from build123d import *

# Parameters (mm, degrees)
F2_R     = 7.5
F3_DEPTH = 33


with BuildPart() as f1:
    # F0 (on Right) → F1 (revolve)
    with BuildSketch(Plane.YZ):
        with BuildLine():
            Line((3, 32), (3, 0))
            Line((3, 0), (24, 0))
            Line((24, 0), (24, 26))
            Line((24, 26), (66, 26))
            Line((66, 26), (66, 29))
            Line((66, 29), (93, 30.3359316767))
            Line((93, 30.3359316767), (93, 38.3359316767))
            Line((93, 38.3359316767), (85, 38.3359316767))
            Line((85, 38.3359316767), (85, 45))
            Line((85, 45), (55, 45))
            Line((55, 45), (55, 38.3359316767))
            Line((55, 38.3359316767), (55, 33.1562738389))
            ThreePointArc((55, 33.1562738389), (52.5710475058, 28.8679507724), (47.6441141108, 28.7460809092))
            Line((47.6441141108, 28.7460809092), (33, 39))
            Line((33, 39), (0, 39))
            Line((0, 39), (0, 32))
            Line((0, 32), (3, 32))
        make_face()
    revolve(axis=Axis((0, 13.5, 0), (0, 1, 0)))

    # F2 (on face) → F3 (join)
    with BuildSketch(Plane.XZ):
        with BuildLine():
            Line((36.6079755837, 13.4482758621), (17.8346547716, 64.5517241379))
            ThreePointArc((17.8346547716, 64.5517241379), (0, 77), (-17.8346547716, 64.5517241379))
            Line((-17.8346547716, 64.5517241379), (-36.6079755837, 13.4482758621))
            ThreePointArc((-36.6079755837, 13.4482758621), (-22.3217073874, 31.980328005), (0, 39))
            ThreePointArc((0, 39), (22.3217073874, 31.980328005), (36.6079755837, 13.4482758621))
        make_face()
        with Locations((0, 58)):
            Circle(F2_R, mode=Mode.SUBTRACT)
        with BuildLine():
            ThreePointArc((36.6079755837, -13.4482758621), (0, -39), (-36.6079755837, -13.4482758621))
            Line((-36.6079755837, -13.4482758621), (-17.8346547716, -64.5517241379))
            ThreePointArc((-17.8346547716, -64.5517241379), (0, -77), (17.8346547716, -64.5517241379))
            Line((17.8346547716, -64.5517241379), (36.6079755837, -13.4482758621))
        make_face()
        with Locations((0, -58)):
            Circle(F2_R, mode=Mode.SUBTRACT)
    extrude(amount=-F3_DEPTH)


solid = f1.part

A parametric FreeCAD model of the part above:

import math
import FreeCAD as App
import Part
import Sketcher
from FreeCAD import Vector
Q = App.Units.Quantity

doc = App.newDocument("Part")
body = doc.addObject("PartDesign::Body", "Body")

# Sketch on YZ plane
sketch1 = doc.addObject("Sketcher::SketchObject", "Sketch")
body.addObject(sketch1)
sketch1.AttachmentSupport = (doc.YZ_Plane, [""])
sketch1.MapMode = "FlatFace"
sketch1.addGeometry([
    Part.LineSegment(Vector(3, 32, 0), Vector(3, 0, 0)),  # 0
    Part.LineSegment(Vector(3, 0, 0), Vector(24, 0, 0)),  # 1
    Part.LineSegment(Vector(24, 0, 0), Vector(24, 26, 0)),  # 2
    Part.LineSegment(Vector(24, 26, 0), Vector(66, 26, 0)),  # 3
    Part.LineSegment(Vector(66, 26, 0), Vector(66, 29, 0)),  # 4
    Part.LineSegment(Vector(66, 29, 0), Vector(93, 30.3, 0)),  # 5
    Part.LineSegment(Vector(93, 30.3, 0), Vector(93, 38.3, 0)),  # 6
    Part.LineSegment(Vector(93, 38.3, 0), Vector(85, 38.3, 0)),  # 7
    Part.LineSegment(Vector(85, 38.3, 0), Vector(85, 45, 0)),  # 8
    Part.LineSegment(Vector(85, 45, 0), Vector(55, 45, 0)),  # 9
    Part.LineSegment(Vector(55, 45, 0), Vector(55, 33.2, 0)),  # 10
    Part.ArcOfCircle(Part.Circle(Vector(50, 33.2, 0), Vector(0, 0, 1), 5), math.radians(-118), math.radians(0)),  # 11
    Part.LineSegment(Vector(47.6, 28.7, 0), Vector(33, 39, 0)),  # 12
    Part.LineSegment(Vector(33, 39, 0), Vector(0, 39, 0)),  # 13
    Part.LineSegment(Vector(0, 39, 0), Vector(0, 32, 0)),  # 14
    Part.LineSegment(Vector(0, 32, 0), Vector(3, 32, 0)),  # 15
], False)
sketch1.addConstraint([
    Sketcher.Constraint("Coincident", 0, 2, 1, 1),
    Sketcher.Constraint("Coincident", 1, 2, 2, 1),
    Sketcher.Constraint("Coincident", 2, 2, 3, 1),
    Sketcher.Constraint("Coincident", 3, 2, 4, 1),
    Sketcher.Constraint("Coincident", 4, 2, 5, 1),
    Sketcher.Constraint("Coincident", 5, 2, 6, 1),
    Sketcher.Constraint("Coincident", 6, 2, 7, 1),
    Sketcher.Constraint("Coincident", 7, 2, 8, 1),
    Sketcher.Constraint("Coincident", 8, 2, 9, 1),
    Sketcher.Constraint("Coincident", 9, 2, 10, 1),
    Sketcher.Constraint("Tangent", 10, 2, 11, 2),
    Sketcher.Constraint("Coincident", 11, 1, 12, 1),
    Sketcher.Constraint("Coincident", 12, 2, 13, 1),
    Sketcher.Constraint("Coincident", 13, 2, 14, 1),
    Sketcher.Constraint("Coincident", 14, 2, 15, 1),
    Sketcher.Constraint("Coincident", 15, 2, 0, 1),
    Sketcher.Constraint("Vertical", 0),
    Sketcher.Constraint("Horizontal", 1),
    Sketcher.Constraint("Vertical", 2),
    Sketcher.Constraint("Horizontal", 3),
    Sketcher.Constraint("Vertical", 4),
    Sketcher.Constraint("Vertical", 6),
    Sketcher.Constraint("Horizontal", 7),
    Sketcher.Constraint("Vertical", 8),
    Sketcher.Constraint("Horizontal", 9),
    Sketcher.Constraint("Vertical", 10),
    Sketcher.Constraint("Horizontal", 13),
    Sketcher.Constraint("Vertical", 14),
    Sketcher.Constraint("Horizontal", 15),
    Sketcher.Constraint("PointOnObject", 0, 2, -1),
    Sketcher.Constraint("PointOnObject", 13, 2, -2),
    Sketcher.Constraint("Equal", 15, 4),
    Sketcher.Constraint("Equal", 7, 6),
    Sketcher.Constraint("Radius", 11, 5.0),
    Sketcher.Constraint("DistanceX", 1, 1, 1, 2, 21.0),
    Sketcher.Constraint("DistanceX", 3, 1, 3, 2, 42.0),
    Sketcher.Constraint("DistanceX", 7, 2, 7, 1, 8.0),
    Sketcher.Constraint("DistanceX", 9, 2, 9, 1, 30.0),
    Sketcher.Constraint("DistanceX", 13, 2, 13, 1, 33.0),
    Sketcher.Constraint("DistanceX", 15, 1, 15, 2, 3.0),
    Sketcher.Constraint("DistanceY", 0, 2, 0, 1, 32.0),
    Sketcher.Constraint("DistanceY", 2, 1, 2, 2, 26.0),
    Sketcher.Constraint("DistanceY", 14, 2, 14, 1, 7.0),
    Sketcher.Constraint("Angle", 12, Q("145 deg")),
    Sketcher.Constraint("DistanceX", -1, 1, 11, 3, 50.0),
    Sketcher.Constraint("DistanceY", -1, 1, 8, 2, 45.0),
    Sketcher.Constraint("DistanceY", 8, 1, 8, 2, 6.664068),
    Sketcher.Constraint("DistanceY", 10, 2, 10, 1, 11.843726),
])
revolution = doc.addObject("PartDesign::Revolution", "Revolution")
body.addObject(revolution)
revolution.Profile = sketch1
revolution.ReferenceAxis = (sketch1, ["H_Axis"])
revolution.Angle = 360

# Sketch on XZ plane
sketch2 = doc.addObject("Sketcher::SketchObject", "Sketch001")
body.addObject(sketch2)
sketch2.AttachmentSupport = (doc.XZ_Plane, [""])
sketch2.MapMode = "FlatFace"
sketch2.addGeometry([
    Part.LineSegment(Vector(37, 13, 0), Vector(18, 65, 0)),  # 0
    Part.ArcOfCircle(Part.Circle(Vector(0, 58, 0), Vector(0, 0, 1), 19), math.radians(20), math.radians(160)),  # 1
    Part.LineSegment(Vector(-18, 65, 0), Vector(-37, 13, 0)),  # 2
    Part.ArcOfCircle(Part.Circle(Vector(0, 0, 0), Vector(0, 0, 1), 39), math.radians(90), math.radians(160)),  # 3
    Part.ArcOfCircle(Part.Circle(Vector(0, 0, 0), Vector(0, 0, 1), 39), math.radians(20), math.radians(90)),  # 4
    Part.Circle(Vector(0, 58, 0), Vector(0, 0, 1), 8),  # 5
    Part.ArcOfCircle(Part.Circle(Vector(0, 0, 0), Vector(0, 0, 1), 39), math.radians(-160), math.radians(-20)),  # 6
    Part.LineSegment(Vector(-37, -13, 0), Vector(-18, -65, 0)),  # 7
    Part.ArcOfCircle(Part.Circle(Vector(0, -58, 0), Vector(0, 0, 1), 19), math.radians(-160), math.radians(-20)),  # 8
    Part.LineSegment(Vector(18, -65, 0), Vector(37, -13, 0)),  # 9
    Part.Circle(Vector(0, -58, 0), Vector(0, 0, 1), 8),  # 10
], False)
sketch2.addConstraint([
    Sketcher.Constraint("Tangent", 0, 2, 1, 1),
    Sketcher.Constraint("Tangent", 1, 2, 2, 1),
    Sketcher.Constraint("Tangent", 2, 2, 3, 2),
    Sketcher.Constraint("Tangent", 3, 1, 4, 2),
    Sketcher.Constraint("Tangent", 4, 1, 0, 1),
    Sketcher.Constraint("Tangent", 6, 1, 7, 1),
    Sketcher.Constraint("Tangent", 7, 2, 8, 1),
    Sketcher.Constraint("Tangent", 8, 2, 9, 1),
    Sketcher.Constraint("Tangent", 9, 2, 6, 2),
    Sketcher.Constraint("Coincident", 3, 3, -1, 1),
    Sketcher.Constraint("Coincident", 6, 3, -1, 1),
    Sketcher.Constraint("Coincident", 5, 3, 1, 3),
    Sketcher.Constraint("Coincident", 10, 3, 8, 3),
    Sketcher.Constraint("Equal", 3, 4),
    Sketcher.Constraint("Equal", 4, 6),
    Sketcher.Constraint("Equal", 1, 8),
    Sketcher.Constraint("Equal", 5, 10),
    Sketcher.Constraint("Symmetric", 1, 3, 8, 3, -1, 1),
    Sketcher.Constraint("PointOnObject", 1, 3, -2),
    Sketcher.Constraint("PointOnObject", 3, 1, -2),
    Sketcher.Constraint("Diameter", 5, 15.0),
    Sketcher.Constraint("Radius", 1, 19.0),
    Sketcher.Constraint("Radius", 3, 39.0),
    Sketcher.Constraint("DistanceY", -1, 1, 1, 3, 58.0),
])
pad1 = doc.addObject("PartDesign::Pad", "Pad")
body.addObject(pad1)
pad1.Profile = sketch2
pad1.Length = 33
pad1.Reversed = True

doc.recompute()
